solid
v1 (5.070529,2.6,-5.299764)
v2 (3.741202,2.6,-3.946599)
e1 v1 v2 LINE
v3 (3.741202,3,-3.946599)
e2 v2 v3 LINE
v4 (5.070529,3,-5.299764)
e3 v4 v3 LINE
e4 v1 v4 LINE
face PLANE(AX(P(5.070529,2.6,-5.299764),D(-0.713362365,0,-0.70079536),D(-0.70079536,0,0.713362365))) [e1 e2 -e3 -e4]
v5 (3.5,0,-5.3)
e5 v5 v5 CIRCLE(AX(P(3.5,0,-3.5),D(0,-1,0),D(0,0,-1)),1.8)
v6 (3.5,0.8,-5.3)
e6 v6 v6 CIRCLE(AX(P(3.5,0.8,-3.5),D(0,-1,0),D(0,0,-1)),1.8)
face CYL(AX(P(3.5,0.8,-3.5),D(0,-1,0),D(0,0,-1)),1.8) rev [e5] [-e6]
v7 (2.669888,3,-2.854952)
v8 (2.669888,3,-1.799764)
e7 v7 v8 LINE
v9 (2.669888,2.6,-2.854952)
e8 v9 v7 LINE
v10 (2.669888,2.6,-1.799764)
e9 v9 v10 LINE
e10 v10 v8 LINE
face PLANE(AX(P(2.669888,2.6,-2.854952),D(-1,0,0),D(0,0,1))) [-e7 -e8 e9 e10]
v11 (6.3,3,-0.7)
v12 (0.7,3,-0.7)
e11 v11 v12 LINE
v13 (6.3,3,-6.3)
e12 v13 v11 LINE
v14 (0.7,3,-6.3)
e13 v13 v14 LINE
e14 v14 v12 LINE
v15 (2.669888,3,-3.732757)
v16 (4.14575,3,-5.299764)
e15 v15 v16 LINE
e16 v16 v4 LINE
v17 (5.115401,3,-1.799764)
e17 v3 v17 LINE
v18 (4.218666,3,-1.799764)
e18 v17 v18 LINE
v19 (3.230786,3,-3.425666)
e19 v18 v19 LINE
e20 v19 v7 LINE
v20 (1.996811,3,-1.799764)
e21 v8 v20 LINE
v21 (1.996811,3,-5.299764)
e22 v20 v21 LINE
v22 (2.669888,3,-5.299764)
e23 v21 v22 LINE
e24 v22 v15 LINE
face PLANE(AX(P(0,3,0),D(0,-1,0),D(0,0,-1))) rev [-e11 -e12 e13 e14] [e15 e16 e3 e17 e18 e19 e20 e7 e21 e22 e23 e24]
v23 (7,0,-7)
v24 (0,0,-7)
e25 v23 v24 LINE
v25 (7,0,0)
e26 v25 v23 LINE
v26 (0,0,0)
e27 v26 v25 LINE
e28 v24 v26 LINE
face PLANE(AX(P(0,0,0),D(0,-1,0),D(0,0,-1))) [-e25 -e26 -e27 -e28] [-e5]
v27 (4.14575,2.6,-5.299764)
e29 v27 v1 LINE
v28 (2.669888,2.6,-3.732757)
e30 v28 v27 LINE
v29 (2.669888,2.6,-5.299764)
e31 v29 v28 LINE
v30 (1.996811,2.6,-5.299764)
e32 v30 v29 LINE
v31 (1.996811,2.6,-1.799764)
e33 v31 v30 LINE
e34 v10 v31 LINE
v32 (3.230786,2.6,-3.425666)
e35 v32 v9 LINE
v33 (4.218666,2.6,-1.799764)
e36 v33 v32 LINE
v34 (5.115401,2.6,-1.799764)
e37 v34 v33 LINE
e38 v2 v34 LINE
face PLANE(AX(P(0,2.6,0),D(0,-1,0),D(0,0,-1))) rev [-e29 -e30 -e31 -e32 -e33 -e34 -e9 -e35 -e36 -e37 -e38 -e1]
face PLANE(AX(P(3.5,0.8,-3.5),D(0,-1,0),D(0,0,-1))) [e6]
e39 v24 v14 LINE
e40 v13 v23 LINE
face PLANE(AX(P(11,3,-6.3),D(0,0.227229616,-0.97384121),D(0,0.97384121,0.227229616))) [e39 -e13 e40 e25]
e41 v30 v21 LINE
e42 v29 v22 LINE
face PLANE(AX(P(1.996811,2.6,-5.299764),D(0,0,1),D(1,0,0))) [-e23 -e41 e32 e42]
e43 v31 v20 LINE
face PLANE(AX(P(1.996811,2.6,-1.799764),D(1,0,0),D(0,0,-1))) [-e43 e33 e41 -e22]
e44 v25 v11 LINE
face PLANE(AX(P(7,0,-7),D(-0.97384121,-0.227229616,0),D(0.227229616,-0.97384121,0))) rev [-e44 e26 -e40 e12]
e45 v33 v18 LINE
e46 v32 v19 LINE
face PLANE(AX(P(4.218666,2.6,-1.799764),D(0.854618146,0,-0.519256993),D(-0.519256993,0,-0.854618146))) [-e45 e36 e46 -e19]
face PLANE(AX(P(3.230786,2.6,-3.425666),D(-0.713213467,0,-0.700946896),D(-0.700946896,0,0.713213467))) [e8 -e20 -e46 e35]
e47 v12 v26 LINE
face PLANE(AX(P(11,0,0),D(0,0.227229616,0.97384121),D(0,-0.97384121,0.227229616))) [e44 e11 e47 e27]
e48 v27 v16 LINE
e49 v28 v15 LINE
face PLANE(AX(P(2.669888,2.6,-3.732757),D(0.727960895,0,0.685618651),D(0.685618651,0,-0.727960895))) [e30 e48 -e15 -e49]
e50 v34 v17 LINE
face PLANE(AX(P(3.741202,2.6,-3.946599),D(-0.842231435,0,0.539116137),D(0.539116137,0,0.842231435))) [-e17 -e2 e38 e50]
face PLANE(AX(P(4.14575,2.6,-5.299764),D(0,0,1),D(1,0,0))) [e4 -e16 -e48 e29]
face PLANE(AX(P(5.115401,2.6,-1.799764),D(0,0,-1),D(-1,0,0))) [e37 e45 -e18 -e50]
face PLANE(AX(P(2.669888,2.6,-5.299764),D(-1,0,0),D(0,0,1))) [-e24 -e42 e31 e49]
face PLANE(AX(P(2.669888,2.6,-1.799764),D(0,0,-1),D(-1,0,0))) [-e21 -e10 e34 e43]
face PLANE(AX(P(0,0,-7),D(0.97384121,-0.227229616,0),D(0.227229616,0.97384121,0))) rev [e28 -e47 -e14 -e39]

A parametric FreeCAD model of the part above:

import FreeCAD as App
import Part
import Sketcher
from FreeCAD import Vector
Q = App.Units.Quantity


def add_polygon(sketch, points):
    """Adds a closed chain of lines whose ends are joined by coincident constraints."""
    first, n = sketch.GeometryCount, len(points)
    for a, b in zip(points, points[1:] + points[:1]):
        sketch.addGeometry(Part.LineSegment(App.Vector(*a, 0), App.Vector(*b, 0)), False)
    for i in range(n):
        sketch.addConstraint(Sketcher.Constraint("Coincident", first + i, 2, first + (i + 1) % n, 1))

doc = App.newDocument("Part")
params = doc.addObject("Spreadsheet::Sheet", "Params")
for row, (alias, value) in enumerate([
    ("sketch1_width", "7 mm"),
    ("pad1_length", "3 mm"),
    ("sketch2_height", "3 mm"),
    ("sketch2_width", "0.7 mm"),
    ("pocket1_length", "7 mm"),
    ("sketch3_width", "3 mm"),
    ("sketch3_height", "0.7 mm"),
    ("pocket2_length", "11 mm"),
    ("sketch4_diameter", "3.6 mm"),
    ("pocket3_length", "0.8 mm"),
    ("sketch5_height", "3.5 mm"),
    ("pocket4_length", "0.4 mm"),
], start=1):
    params.set(f"A{row}", alias)
    params.set(f"B{row}", "=" + value)
    params.setAlias(f"B{row}", alias)

body = doc.addObject("PartDesign::Body", "Body")

# Sketch on XZ plane
sketch1 = body.newObject("Sketcher::SketchObject", "Sketch")
sketch1.AttachmentSupport = (doc.getObject("XZ_Plane"), [""])
sketch1.MapMode = "FlatFace"
add_polygon(sketch1, [(0, -7), (0, 0), (7, 0), (7, -7)])  # lines 0-3
sketch1.addConstraint(Sketcher.Constraint("Vertical", 0))
sketch1.addConstraint(Sketcher.Constraint("Horizontal", 1))
sketch1.addConstraint(Sketcher.Constraint("Vertical", 2))
sketch1.addConstraint(Sketcher.Constraint("Horizontal", 3))
sketch1.addConstraint(Sketcher.Constraint("Coincident", 0, 2, -1, 1))
sketch1.addConstraint(Sketcher.Constraint("Equal", 3, 0))
sketch1.addConstraint(Sketcher.Constraint("DistanceX", 1, 1, 1, 2, Q("7 mm")))
sketch1.setExpression("Constraints[10]", "Params.sketch1_width")
pad1 = body.newObject("PartDesign::Pad", "Pad")
pad1.Profile = sketch1
pad1.setExpression("Length", "Params.pad1_length")
pad1.Reversed = True

# Sketch on XY plane
sketch2 = body.newObject("Sketcher::SketchObject", "Sketch001")
sketch2.AttachmentSupport = (doc.getObject("XY_Plane"), [""])
sketch2.MapMode = "FlatFace"
add_polygon(sketch2, [(0, 0), (0.7, 3), (0, 3)])  # lines 0-2
add_polygon(sketch2, [(6.3, 3), (7, 0), (7, 3)])  # lines 3-5
sketch2.addConstraint(Sketcher.Constraint("Horizontal", 1))
sketch2.addConstraint(Sketcher.Constraint("Vertical", 2))
sketch2.addConstraint(Sketcher.Constraint("Vertical", 4))
sketch2.addConstraint(Sketcher.Constraint("Horizontal", 5))
sketch2.addConstraint(Sketcher.Constraint("Coincident", 2, 2, -1, 1))
sketch2.addConstraint(Sketcher.Constraint("PointOnObject", 3, 2, -1))
sketch2.addConstraint(Sketcher.Constraint("Horizontal", 1, 2, 4, 2))
sketch2.addConstraint(Sketcher.Constraint("Equal", 1, 5))
sketch2.addConstraint(Sketcher.Constraint("DistanceY", 2, 2, 2, 1, Q("3 mm")))
sketch2.addConstraint(Sketcher.Constraint("DistanceX", 1, 2, 1, 1, Q("0.7 mm")))
sketch2.addConstraint(Sketcher.Constraint("DistanceX", -1, 1, 3, 2, Q("7 mm")))
sketch2.setExpression("Constraints[14]", "Params.sketch2_height")
sketch2.setExpression("Constraints[15]", "Params.sketch2_width")
pocket1 = body.newObject("PartDesign::Pocket", "Pocket")
pocket1.Profile = sketch2
pocket1.setExpression("Length", "Params.pocket1_length")

# Sketch on YZ plane
sketch3 = body.newObject("Sketcher::SketchObject", "Sketch002")
sketch3.AttachmentSupport = (doc.getObject("YZ_Plane"), [""])
sketch3.MapMode = "FlatFace"
add_polygon(sketch3, [(0, 0), (3, -0.7), (3, 0)])  # lines 0-2
add_polygon(sketch3, [(3, -7), (3, -6.3), (0, -7)])  # lines 3-5
sketch3.addConstraint(Sketcher.Constraint("Vertical", 1))
sketch3.addConstraint(Sketcher.Constraint("Horizontal", 2))
sketch3.addConstraint(Sketcher.Constraint("Vertical", 3))
sketch3.addConstraint(Sketcher.Constraint("Horizontal", 5))
sketch3.addConstraint(Sketcher.Constraint("Coincident", 2, 2, -1, 1))
sketch3.addConstraint(Sketcher.Constraint("PointOnObject", 4, 2, -2))
sketch3.addConstraint(Sketcher.Constraint("Vertical", 1, 2, 3, 2))
sketch3.addConstraint(Sketcher.Constraint("Equal", 1, 3))
sketch3.addConstraint(Sketcher.Constraint("DistanceX", 2, 2, 2, 1, Q("3 mm")))
sketch3.addConstraint(Sketcher.Constraint("DistanceY", 1, 1, 1, 2, Q("0.7 mm")))
sketch3.addConstraint(Sketcher.Constraint("DistanceY", 4, 2, -1, 1, Q("7 mm")))
sketch3.setExpression("Constraints[14]", "Params.sketch3_width")
sketch3.setExpression("Constraints[15]", "Params.sketch3_height")
pocket2 = body.newObject("PartDesign::Pocket", "Pocket001")
pocket2.Profile = sketch3
pocket2.setExpression("Length", "Params.pocket2_length")
pocket2.Reversed = True

# Sketch on XZ plane
sketch4 = body.newObject("Sketcher::SketchObject", "Sketch003")
sketch4.AttachmentSupport = (doc.getObject("XZ_Plane"), [""])
sketch4.MapMode = "FlatFace"
sketch4.addGeometry(Part.Circle(Vector(3.5, -3.5, 0), Vector(0, 0, 1), 1.8), False)
sketch4.addConstraint(Sketcher.Constraint("Diameter", 0, Q("3.6 mm")))
sketch4.addConstraint(Sketcher.Constraint("DistanceX", -1, 1, 0, 3, Q("3.5 mm")))
sketch4.addConstraint(Sketcher.Constraint("DistanceY", 0, 3, -1, 1, Q("3.5 mm")))
sketch4.setExpression("Constraints[0]", "Params.sketch4_diameter")
pocket3 = body.newObject("PartDesign::Pocket", "Pocket002")
pocket3.Profile = sketch4
pocket3.setExpression("Length", "Params.pocket3_length")

# Sketch on XZ plane
sketch5 = body.newObject("Sketcher::SketchObject", "Sketch004")
sketch5.AttachmentSupport = (doc.getObject("XZ_Plane"), [""])
sketch5.MapMode = "FlatFace"
sketch5.AttachmentOffset = App.Placement(Vector(0, 0, -3), App.Rotation())
add_polygon(sketch5, [(1.996811, -5.299764), (1.996811, -1.799764), (2.669888, -1.799764), (2.669888, -2.854952), (3.230786, -3.425666), (4.218666, -1.799764), (5.115401, -1.799764), (3.741202, -3.946599), (5.070529, -5.299764), (4.14575, -5.299764), (2.669888, -3.732757), (2.669888, -5.299764)])  # lines 0-11
sketch5.addConstraint(Sketcher.Constraint("Vertical", 0))
sketch5.addConstraint(Sketcher.Constraint("Horizontal", 1))
sketch5.addConstraint(Sketcher.Constraint("Vertical", 2))
sketch5.addConstraint(Sketcher.Constraint("Horizontal", 5))
sketch5.addConstraint(Sketcher.Constraint("Horizontal", 8))
sketch5.addConstraint(Sketcher.Constraint("Vertical", 10))
sketch5.addConstraint(Sketcher.Constraint("Horizontal", 11))
sketch5.addConstraint(Sketcher.Constraint("Horizontal", 1, 2, 4, 2))
sketch5.addConstraint(Sketcher.Constraint("Horizontal", 8, 2, 10, 2))
sketch5.addConstraint(Sketcher.Constraint("Vertical", 2, 2, 9, 2))
sketch5.addConstraint(Sketcher.Constraint("DistanceY", 0, 1, 0, 2, Q("3.5 mm")))
sketch5.addConstraint(Sketcher.Constraint("Distance", 3, Q("0.8002 mm")))
sketch5.addConstraint(Sketcher.Constraint("Distance", 9, Q("2.152598 mm")))
sketch5.addConstraint(Sketcher.Constraint("DistanceX", 8, 2, 8, 1, Q("0.92478 mm")))
sketch5.addConstraint(Sketcher.Constraint("DistanceY", 2, 2, 2, 1, Q("1.055188 mm")))
sketch5.addConstraint(Sketcher.Constraint("DistanceX", -1, 1, 5, 2, Q("5.115401 mm")))
sketch5.addConstraint(Sketcher.Constraint("DistanceY", 6, 2, -1, 1, Q("3.946599 mm")))
sketch5.addConstraint(Sketcher.Constraint("DistanceY", 3, 2, 1, 2, Q("1.625901 mm")))
sketch5.addConstraint(Sketcher.Constraint("DistanceX", 6, 2, 5, 2, Q("1.374199 mm")))
sketch5.addConstraint(Sketcher.Constraint("Distance", 4, Q("1.902489 mm")))
sketch5.addConstraint(Sketcher.Constraint("DistanceX", 1, 1, 1, 2, Q("0.673077 mm")))
sketch5.addConstraint(Sketcher.Constraint("DistanceX", 5, 1, 5, 2, Q("0.896735 mm")))
sketch5.addConstraint(Sketcher.Constraint("DistanceY", 10, 2, 10, 1, Q("1.567007 mm")))
sketch5.addConstraint(Sketcher.Constraint("Distance", 6, Q("2.548985 mm")))
sketch5.setExpression("Constraints[22]", "Params.sketch5_height")
pocket4 = body.newObject("PartDesign::Pocket", "Pocket003")
pocket4.Profile = sketch5
pocket4.setExpression("Length", "Params.pocket4_length")
pocket4.Reversed = True

doc.recompute()
